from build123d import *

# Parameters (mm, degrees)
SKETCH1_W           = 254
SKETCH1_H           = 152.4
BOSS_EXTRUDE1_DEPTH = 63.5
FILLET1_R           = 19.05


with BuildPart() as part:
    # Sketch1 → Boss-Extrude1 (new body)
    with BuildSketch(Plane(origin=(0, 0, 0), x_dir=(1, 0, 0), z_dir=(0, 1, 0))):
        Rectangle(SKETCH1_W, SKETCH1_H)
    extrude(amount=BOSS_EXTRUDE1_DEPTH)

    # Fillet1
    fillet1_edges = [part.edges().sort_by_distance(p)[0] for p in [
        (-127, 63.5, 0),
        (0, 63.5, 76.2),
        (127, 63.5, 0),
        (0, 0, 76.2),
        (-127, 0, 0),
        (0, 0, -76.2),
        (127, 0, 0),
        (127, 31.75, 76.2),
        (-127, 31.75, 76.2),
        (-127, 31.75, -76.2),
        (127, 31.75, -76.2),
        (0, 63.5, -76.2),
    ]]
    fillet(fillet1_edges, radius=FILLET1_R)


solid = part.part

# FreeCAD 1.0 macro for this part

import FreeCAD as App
import Part
import Sketcher
Q = App.Units.Quantity


def add_polygon(sketch, points):
    """Adds a closed chain of lines whose ends are joined by coincident constraints."""
    first, n = sketch.GeometryCount, len(points)
    for a, b in zip(points, points[1:] + points[:1]):
        sketch.addGeometry(Part.LineSegment(App.Vector(*a, 0), App.Vector(*b, 0)), False)
    for i in range(n):
        sketch.addConstraint(Sketcher.Constraint("Coincident", first + i, 2, first + (i + 1) % n, 1))

doc = App.newDocument("Part")
body = doc.addObject("PartDesign::Body", "Body")

sketch1 = doc.addObject("Sketcher::SketchObject", "Sketch")
body.addObject(sketch1)
sketch1.AttachmentSupport = (doc.XZ_Plane, [""])
sketch1.MapMode = "FlatFace"
add_polygon(sketch1, [(-127, -76.2), (-127, 76.2), (127, 76.2), (127, -76.2)])
sketch1.addConstraint([
    Sketcher.Constraint("Vertical", 0),
    Sketcher.Constraint("Horizontal", 1),
    Sketcher.Constraint("Vertical", 2),
    Sketcher.Constraint("Horizontal", 3),
    Sketcher.Constraint("Symmetric", 0, 2, 2, 2, -1, 1),
    Sketcher.Constraint("DistanceX", 1, 1, 1, 2, Q("10 in")),
    Sketcher.Constraint("DistanceY", 0, 1, 0, 2, Q("6 in")),
])
pad1 = doc.addObject("PartDesign::Pad", "Pad")
body.addObject(pad1)
pad1.Profile = sketch1
pad1.Length = Q("2.5 in")
pad1.Reversed = True
doc.recompute()

fillet = doc.addObject("PartDesign::Fillet", "Fillet")
body.addObject(fillet)
fillet.Base = (pad1, ["Edge1"])
fillet.UseAllEdges = True
fillet.Radius = Q("0.75 in")

doc.recompute()
